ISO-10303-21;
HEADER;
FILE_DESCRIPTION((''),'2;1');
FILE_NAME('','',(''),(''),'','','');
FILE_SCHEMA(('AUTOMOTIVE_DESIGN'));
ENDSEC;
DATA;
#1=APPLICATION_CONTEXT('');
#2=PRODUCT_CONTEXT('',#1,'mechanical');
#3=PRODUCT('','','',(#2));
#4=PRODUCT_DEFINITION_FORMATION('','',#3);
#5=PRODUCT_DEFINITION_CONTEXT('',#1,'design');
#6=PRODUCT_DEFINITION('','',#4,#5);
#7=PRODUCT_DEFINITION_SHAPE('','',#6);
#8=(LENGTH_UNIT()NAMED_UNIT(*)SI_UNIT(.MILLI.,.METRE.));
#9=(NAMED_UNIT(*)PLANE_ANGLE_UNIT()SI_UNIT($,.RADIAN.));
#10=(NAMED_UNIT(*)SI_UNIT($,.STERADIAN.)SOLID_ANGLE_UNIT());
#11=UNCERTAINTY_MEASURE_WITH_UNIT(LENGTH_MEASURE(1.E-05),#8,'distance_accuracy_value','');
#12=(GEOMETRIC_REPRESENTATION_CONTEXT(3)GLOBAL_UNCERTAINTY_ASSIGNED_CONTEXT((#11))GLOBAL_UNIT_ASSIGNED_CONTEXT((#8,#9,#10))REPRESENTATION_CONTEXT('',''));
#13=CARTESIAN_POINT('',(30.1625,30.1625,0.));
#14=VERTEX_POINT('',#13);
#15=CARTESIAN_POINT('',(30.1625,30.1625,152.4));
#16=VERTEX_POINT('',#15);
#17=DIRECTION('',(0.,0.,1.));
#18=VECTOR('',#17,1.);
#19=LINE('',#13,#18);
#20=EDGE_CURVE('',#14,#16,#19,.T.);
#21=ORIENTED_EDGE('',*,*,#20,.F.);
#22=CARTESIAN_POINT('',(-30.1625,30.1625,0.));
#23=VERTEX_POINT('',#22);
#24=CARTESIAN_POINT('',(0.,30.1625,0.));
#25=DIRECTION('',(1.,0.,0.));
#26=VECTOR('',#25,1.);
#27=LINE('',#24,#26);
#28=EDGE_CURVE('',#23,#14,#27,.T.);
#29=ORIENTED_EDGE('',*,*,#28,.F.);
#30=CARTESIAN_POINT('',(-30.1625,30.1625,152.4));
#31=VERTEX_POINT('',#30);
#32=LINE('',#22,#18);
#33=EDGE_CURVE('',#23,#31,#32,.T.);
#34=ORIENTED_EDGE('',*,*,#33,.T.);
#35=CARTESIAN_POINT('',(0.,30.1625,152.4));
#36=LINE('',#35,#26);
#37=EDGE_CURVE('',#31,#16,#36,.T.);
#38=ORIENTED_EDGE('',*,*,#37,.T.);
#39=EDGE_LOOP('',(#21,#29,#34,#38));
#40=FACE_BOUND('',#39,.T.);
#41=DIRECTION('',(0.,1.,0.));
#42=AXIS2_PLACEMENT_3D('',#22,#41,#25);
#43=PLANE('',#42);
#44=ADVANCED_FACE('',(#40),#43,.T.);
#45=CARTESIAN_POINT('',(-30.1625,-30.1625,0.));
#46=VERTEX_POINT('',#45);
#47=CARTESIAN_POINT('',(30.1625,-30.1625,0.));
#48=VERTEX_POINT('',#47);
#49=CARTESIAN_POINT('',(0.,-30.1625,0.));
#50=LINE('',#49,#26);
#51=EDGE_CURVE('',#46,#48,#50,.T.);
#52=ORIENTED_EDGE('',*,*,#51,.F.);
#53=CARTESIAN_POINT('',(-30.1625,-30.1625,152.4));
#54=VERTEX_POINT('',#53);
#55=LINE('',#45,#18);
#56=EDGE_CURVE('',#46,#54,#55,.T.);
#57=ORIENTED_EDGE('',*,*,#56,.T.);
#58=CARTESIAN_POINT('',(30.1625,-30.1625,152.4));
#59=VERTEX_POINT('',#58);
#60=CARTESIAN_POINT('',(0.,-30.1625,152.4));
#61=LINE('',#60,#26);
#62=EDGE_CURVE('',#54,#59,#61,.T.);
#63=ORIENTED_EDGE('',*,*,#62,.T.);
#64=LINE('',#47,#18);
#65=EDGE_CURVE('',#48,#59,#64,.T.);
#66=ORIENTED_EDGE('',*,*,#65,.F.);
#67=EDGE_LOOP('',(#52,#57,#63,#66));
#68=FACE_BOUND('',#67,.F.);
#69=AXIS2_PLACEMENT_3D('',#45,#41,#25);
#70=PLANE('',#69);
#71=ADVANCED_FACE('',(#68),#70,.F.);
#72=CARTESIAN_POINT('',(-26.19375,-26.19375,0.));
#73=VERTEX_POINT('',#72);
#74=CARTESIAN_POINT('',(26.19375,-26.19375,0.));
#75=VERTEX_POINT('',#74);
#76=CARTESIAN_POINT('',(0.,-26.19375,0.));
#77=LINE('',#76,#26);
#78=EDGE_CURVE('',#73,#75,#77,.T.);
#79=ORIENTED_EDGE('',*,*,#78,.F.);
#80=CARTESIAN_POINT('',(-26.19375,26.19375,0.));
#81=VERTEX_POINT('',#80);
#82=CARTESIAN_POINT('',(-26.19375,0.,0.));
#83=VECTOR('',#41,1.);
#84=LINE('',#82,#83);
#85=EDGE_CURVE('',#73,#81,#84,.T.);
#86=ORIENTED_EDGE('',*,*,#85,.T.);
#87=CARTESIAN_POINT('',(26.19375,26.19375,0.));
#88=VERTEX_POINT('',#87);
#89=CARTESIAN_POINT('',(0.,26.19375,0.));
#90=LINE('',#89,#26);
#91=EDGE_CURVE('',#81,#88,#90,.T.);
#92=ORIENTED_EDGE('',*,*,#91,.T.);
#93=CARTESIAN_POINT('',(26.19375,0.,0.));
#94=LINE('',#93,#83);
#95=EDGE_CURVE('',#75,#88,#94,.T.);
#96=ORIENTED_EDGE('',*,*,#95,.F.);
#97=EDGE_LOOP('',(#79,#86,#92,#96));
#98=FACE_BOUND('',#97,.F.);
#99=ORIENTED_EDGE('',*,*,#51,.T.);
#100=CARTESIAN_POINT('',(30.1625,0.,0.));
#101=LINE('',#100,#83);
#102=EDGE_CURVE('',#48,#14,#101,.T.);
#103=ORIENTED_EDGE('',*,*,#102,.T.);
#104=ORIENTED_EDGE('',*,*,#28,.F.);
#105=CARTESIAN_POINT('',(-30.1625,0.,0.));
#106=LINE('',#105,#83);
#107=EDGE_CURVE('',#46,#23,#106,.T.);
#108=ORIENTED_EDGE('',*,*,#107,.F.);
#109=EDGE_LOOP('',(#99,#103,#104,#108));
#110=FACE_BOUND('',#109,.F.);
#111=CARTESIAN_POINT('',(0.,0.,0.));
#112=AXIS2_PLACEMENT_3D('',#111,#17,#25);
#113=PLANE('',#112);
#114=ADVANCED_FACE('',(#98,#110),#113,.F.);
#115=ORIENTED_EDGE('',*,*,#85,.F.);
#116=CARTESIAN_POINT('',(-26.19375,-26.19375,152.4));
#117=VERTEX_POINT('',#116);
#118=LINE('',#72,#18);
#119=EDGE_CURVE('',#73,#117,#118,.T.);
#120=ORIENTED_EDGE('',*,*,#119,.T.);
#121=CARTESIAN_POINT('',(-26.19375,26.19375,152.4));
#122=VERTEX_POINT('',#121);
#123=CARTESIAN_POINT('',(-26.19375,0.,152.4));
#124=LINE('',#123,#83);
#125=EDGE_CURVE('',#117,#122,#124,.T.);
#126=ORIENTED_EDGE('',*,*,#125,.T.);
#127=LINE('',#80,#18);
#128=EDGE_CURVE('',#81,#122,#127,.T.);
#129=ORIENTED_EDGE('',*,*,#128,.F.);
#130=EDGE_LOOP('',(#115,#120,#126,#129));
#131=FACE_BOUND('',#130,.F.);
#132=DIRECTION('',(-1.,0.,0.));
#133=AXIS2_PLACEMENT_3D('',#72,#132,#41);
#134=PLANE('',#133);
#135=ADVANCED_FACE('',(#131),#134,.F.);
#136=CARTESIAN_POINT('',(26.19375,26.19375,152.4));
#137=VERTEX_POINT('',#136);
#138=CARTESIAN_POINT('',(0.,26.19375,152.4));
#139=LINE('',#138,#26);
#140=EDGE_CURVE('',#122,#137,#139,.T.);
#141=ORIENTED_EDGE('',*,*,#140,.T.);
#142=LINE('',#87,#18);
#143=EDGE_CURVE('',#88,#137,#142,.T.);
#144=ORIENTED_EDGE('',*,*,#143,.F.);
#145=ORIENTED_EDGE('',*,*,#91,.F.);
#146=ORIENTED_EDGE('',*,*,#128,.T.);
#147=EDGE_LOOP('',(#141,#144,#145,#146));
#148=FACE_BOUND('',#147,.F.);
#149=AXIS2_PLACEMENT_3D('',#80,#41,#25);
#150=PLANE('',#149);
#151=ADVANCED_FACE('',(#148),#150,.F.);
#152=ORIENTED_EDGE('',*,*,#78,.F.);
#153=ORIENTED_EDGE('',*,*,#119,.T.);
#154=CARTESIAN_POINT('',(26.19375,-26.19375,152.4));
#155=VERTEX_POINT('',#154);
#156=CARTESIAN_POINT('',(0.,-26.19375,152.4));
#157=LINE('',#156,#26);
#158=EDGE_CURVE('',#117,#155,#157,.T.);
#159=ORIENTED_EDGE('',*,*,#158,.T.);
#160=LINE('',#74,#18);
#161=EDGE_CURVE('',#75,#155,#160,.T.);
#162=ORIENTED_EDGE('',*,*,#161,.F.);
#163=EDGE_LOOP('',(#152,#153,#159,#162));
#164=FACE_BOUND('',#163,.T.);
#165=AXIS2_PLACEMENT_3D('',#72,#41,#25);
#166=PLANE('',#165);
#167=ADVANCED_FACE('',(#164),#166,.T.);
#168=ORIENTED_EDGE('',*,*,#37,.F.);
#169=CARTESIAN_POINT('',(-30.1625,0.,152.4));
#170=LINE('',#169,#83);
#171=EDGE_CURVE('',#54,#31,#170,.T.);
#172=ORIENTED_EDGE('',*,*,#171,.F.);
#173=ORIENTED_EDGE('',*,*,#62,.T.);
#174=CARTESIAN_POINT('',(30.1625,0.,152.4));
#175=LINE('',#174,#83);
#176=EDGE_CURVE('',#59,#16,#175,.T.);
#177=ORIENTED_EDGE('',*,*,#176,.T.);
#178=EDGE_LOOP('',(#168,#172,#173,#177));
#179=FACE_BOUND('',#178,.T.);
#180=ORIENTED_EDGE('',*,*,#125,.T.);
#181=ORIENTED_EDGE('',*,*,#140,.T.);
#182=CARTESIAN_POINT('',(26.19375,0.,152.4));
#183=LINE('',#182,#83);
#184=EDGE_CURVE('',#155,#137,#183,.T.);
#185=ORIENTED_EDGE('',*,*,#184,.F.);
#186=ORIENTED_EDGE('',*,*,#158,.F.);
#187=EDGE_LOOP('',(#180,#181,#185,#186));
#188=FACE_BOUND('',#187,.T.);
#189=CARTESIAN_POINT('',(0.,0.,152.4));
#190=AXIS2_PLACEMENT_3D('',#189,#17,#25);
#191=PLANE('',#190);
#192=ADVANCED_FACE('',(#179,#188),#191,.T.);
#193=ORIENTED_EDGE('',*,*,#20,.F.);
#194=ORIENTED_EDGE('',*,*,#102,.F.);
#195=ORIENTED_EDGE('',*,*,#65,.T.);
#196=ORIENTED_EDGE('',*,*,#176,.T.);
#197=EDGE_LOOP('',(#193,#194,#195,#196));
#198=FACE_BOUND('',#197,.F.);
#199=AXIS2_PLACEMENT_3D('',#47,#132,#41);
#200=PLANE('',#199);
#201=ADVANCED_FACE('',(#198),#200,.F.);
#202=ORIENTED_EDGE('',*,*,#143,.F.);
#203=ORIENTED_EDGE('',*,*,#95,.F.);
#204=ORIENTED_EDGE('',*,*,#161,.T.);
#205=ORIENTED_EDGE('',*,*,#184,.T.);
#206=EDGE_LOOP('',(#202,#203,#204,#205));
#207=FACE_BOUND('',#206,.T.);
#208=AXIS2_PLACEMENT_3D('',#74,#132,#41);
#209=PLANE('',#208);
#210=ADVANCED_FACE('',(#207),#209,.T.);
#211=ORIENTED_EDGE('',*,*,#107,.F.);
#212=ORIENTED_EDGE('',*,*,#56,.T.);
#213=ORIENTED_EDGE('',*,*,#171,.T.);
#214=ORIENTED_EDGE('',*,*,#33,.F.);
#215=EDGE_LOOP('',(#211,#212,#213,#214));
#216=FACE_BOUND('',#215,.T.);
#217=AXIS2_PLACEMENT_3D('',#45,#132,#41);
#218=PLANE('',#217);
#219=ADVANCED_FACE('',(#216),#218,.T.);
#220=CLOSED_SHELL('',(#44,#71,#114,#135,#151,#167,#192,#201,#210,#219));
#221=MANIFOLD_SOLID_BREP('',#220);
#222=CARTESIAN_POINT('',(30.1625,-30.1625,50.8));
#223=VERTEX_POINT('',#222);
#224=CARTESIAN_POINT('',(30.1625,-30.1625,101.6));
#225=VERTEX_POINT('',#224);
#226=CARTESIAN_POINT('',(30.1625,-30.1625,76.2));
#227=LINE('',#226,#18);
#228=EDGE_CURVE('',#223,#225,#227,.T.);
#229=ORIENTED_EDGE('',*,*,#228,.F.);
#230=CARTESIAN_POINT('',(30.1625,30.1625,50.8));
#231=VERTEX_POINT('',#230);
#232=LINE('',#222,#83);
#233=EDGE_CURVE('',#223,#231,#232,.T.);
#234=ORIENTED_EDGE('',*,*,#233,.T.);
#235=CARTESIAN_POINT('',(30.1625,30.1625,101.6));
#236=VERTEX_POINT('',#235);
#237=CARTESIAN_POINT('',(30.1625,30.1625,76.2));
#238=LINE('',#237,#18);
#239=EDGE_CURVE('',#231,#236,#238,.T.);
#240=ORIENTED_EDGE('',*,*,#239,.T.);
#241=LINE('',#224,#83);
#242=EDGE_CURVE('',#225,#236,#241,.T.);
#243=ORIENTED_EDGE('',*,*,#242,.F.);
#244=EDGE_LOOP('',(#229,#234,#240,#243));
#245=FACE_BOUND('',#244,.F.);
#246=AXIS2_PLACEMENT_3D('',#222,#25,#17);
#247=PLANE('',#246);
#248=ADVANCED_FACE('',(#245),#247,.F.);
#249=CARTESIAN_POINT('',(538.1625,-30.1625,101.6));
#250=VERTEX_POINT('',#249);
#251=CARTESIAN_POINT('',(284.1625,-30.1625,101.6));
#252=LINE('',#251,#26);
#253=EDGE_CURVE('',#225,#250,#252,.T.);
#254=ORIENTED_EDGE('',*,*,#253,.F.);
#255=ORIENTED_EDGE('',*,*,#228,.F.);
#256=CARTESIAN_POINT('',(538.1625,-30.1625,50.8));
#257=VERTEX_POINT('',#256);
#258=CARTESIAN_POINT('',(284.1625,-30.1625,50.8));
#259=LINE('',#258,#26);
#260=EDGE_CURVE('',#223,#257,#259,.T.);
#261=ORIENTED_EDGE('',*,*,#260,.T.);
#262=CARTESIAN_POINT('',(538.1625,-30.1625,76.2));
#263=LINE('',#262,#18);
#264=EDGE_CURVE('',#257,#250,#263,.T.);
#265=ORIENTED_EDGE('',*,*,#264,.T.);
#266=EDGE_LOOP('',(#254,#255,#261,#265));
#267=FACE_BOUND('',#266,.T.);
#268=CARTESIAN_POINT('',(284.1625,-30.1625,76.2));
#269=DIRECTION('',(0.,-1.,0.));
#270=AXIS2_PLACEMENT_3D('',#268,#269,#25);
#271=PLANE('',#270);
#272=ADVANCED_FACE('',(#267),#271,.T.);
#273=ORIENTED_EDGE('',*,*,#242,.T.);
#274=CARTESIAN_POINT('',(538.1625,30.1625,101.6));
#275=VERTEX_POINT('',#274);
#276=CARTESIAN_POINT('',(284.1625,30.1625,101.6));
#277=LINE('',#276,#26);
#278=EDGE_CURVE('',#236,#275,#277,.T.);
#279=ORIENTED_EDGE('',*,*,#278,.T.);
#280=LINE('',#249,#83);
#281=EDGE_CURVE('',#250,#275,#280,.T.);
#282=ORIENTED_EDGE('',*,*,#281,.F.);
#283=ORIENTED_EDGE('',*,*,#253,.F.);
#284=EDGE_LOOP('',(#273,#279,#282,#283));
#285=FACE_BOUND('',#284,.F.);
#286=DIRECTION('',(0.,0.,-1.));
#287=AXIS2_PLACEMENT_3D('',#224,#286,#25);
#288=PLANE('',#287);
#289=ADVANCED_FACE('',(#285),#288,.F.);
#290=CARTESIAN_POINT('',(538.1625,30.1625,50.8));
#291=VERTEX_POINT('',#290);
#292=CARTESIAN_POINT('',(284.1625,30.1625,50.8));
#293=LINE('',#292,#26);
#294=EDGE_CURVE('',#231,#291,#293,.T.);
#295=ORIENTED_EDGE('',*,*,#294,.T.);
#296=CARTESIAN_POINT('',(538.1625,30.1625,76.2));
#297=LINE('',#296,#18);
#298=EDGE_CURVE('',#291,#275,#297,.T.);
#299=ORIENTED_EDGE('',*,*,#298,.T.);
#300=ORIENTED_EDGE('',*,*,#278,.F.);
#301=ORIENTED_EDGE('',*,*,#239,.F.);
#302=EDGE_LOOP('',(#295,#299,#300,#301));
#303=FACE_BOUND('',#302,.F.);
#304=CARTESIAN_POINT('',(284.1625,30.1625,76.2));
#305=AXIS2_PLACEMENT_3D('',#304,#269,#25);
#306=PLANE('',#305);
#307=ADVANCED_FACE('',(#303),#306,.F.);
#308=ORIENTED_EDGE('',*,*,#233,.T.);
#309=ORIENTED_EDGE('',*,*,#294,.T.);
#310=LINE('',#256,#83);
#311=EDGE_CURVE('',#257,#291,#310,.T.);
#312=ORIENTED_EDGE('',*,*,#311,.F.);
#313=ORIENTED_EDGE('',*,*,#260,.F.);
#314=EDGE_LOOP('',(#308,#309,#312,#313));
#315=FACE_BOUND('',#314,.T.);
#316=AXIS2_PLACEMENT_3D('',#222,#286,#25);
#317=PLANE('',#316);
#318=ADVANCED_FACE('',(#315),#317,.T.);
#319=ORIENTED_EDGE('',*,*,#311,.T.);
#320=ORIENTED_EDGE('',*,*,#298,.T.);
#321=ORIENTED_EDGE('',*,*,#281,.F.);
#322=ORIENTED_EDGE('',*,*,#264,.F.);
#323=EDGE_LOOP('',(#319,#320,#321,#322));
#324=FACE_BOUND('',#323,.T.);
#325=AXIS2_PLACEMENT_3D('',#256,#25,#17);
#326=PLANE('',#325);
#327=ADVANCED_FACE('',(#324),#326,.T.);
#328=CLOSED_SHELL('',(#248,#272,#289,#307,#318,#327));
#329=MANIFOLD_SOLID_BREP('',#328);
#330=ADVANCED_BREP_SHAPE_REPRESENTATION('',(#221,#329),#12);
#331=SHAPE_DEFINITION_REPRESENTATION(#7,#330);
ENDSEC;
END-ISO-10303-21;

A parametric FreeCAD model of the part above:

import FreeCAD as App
import Part
import Sketcher
Q = App.Units.Quantity

doc = App.newDocument("Part")
body = doc.addObject("PartDesign::Body", "Body")

# Sketch on XY plane
sketch1 = doc.addObject("Sketcher::SketchObject", "Sketch")
body.addObject(sketch1)
sketch1.AttachmentSupport = (doc.XY_Plane, [""])
sketch1.MapMode = "FlatFace"
sketch1.addGeometry([
    Part.LineSegment(App.Vector(-30.1625, 30.1625, 0), App.Vector(-30.1625, -30.1625, 0)),  # 0
    Part.LineSegment(App.Vector(-30.1625, -30.1625, 0), App.Vector(30.1625, -30.1625, 0)),  # 1
    Part.LineSegment(App.Vector(30.1625, -30.1625, 0), App.Vector(30.1625, 30.1625, 0)),  # 2
    Part.LineSegment(App.Vector(30.1625, 30.1625, 0), App.Vector(-30.1625, 30.1625, 0)),  # 3
    Part.LineSegment(App.Vector(26.19375, -26.19375, 0), App.Vector(-26.19375, -26.19375, 0)),  # 4
    Part.LineSegment(App.Vector(-26.19375, -26.19375, 0), App.Vector(-26.19375, 26.19375, 0)),  # 5
    Part.LineSegment(App.Vector(-26.19375, 26.19375, 0), App.Vector(26.19375, 26.19375, 0)),  # 6
    Part.LineSegment(App.Vector(26.19375, 26.19375, 0), App.Vector(26.19375, -26.19375, 0)),  # 7
], False)
sketch1.addConstraint([
    Sketcher.Constraint("Coincident", 0, 2, 1, 1),
    Sketcher.Constraint("Coincident", 1, 2, 2, 1),
    Sketcher.Constraint("Coincident", 2, 2, 3, 1),
    Sketcher.Constraint("Coincident", 3, 2, 0, 1),
    Sketcher.Constraint("Coincident", 4, 2, 5, 1),
    Sketcher.Constraint("Coincident", 5, 2, 6, 1),
    Sketcher.Constraint("Coincident", 6, 2, 7, 1),
    Sketcher.Constraint("Coincident", 7, 2, 4, 1),
    Sketcher.Constraint("Vertical", 0),
    Sketcher.Constraint("Horizontal", 1),
    Sketcher.Constraint("Vertical", 2),
    Sketcher.Constraint("Horizontal", 3),
    Sketcher.Constraint("Horizontal", 4),
    Sketcher.Constraint("Vertical", 5),
    Sketcher.Constraint("Horizontal", 6),
    Sketcher.Constraint("Vertical", 7),
    Sketcher.Constraint("Symmetric", 0, 2, 2, 2, -1, 1),
    Sketcher.Constraint("Symmetric", 4, 2, 6, 2, -1, 1),
    Sketcher.Constraint("Equal", 3, 0),
    Sketcher.Constraint("Equal", 6, 5),
    Sketcher.Constraint("DistanceX", 1, 1, 1, 2, Q("2.375 in")),
    Sketcher.Constraint("DistanceX", 4, 2, 4, 1, Q("2.0625 in")),
])
pad1 = doc.addObject("PartDesign::Pad", "Pad")
body.addObject(pad1)
pad1.Profile = sketch1
pad1.Length = Q("6 in")
body2 = doc.addObject("PartDesign::Body", "Body001")

# Sketch on XZ plane
sketch2 = doc.addObject("Sketcher::SketchObject", "Sketch001")
body2.addObject(sketch2)
sketch2.AttachmentSupport = (doc.getObject("XZ_Plane001"), [""])
sketch2.MapMode = "FlatFace"
sketch2.AttachmentOffset = App.Placement(App.Vector(0, 0, 1.1875 * 25.4), App.Rotation())
sketch2.addGeometry([
    Part.LineSegment(App.Vector(30.1625, 101.6, 0), App.Vector(30.1625, 50.8, 0)),
    Part.LineSegment(App.Vector(30.1625, 50.8, 0), App.Vector(538.1625, 50.8, 0)),
    Part.LineSegment(App.Vector(538.1625, 50.8, 0), App.Vector(538.1625, 101.6, 0)),
    Part.LineSegment(App.Vector(538.1625, 101.6, 0), App.Vector(30.1625, 101.6, 0)),
], False)
sketch2.addConstraint([
    Sketcher.Constraint("Coincident", 0, 2, 1, 1),
    Sketcher.Constraint("Coincident", 1, 2, 2, 1),
    Sketcher.Constraint("Coincident", 2, 2, 3, 1),
    Sketcher.Constraint("Coincident", 3, 2, 0, 1),
    Sketcher.Constraint("Vertical", 0),
    Sketcher.Constraint("Horizontal", 1),
    Sketcher.Constraint("Vertical", 2),
    Sketcher.Constraint("Horizontal", 3),
    Sketcher.Constraint("DistanceX", 1, 1, 1, 2, Q("20 in")),
    Sketcher.Constraint("DistanceY", 0, 2, 0, 1, Q("2 in")),
    Sketcher.Constraint("DistanceY", -1, 1, 0, 2, Q("2 in")),
    Sketcher.Constraint("DistanceX", -1, 1, 0, 2, Q("1.1875 in")),
])
pad2 = doc.addObject("PartDesign::Pad", "Pad001")
body2.addObject(pad2)
pad2.Profile = sketch2
pad2.Length = Q("2.375 in")
pad2.Reversed = True

doc.recompute()
